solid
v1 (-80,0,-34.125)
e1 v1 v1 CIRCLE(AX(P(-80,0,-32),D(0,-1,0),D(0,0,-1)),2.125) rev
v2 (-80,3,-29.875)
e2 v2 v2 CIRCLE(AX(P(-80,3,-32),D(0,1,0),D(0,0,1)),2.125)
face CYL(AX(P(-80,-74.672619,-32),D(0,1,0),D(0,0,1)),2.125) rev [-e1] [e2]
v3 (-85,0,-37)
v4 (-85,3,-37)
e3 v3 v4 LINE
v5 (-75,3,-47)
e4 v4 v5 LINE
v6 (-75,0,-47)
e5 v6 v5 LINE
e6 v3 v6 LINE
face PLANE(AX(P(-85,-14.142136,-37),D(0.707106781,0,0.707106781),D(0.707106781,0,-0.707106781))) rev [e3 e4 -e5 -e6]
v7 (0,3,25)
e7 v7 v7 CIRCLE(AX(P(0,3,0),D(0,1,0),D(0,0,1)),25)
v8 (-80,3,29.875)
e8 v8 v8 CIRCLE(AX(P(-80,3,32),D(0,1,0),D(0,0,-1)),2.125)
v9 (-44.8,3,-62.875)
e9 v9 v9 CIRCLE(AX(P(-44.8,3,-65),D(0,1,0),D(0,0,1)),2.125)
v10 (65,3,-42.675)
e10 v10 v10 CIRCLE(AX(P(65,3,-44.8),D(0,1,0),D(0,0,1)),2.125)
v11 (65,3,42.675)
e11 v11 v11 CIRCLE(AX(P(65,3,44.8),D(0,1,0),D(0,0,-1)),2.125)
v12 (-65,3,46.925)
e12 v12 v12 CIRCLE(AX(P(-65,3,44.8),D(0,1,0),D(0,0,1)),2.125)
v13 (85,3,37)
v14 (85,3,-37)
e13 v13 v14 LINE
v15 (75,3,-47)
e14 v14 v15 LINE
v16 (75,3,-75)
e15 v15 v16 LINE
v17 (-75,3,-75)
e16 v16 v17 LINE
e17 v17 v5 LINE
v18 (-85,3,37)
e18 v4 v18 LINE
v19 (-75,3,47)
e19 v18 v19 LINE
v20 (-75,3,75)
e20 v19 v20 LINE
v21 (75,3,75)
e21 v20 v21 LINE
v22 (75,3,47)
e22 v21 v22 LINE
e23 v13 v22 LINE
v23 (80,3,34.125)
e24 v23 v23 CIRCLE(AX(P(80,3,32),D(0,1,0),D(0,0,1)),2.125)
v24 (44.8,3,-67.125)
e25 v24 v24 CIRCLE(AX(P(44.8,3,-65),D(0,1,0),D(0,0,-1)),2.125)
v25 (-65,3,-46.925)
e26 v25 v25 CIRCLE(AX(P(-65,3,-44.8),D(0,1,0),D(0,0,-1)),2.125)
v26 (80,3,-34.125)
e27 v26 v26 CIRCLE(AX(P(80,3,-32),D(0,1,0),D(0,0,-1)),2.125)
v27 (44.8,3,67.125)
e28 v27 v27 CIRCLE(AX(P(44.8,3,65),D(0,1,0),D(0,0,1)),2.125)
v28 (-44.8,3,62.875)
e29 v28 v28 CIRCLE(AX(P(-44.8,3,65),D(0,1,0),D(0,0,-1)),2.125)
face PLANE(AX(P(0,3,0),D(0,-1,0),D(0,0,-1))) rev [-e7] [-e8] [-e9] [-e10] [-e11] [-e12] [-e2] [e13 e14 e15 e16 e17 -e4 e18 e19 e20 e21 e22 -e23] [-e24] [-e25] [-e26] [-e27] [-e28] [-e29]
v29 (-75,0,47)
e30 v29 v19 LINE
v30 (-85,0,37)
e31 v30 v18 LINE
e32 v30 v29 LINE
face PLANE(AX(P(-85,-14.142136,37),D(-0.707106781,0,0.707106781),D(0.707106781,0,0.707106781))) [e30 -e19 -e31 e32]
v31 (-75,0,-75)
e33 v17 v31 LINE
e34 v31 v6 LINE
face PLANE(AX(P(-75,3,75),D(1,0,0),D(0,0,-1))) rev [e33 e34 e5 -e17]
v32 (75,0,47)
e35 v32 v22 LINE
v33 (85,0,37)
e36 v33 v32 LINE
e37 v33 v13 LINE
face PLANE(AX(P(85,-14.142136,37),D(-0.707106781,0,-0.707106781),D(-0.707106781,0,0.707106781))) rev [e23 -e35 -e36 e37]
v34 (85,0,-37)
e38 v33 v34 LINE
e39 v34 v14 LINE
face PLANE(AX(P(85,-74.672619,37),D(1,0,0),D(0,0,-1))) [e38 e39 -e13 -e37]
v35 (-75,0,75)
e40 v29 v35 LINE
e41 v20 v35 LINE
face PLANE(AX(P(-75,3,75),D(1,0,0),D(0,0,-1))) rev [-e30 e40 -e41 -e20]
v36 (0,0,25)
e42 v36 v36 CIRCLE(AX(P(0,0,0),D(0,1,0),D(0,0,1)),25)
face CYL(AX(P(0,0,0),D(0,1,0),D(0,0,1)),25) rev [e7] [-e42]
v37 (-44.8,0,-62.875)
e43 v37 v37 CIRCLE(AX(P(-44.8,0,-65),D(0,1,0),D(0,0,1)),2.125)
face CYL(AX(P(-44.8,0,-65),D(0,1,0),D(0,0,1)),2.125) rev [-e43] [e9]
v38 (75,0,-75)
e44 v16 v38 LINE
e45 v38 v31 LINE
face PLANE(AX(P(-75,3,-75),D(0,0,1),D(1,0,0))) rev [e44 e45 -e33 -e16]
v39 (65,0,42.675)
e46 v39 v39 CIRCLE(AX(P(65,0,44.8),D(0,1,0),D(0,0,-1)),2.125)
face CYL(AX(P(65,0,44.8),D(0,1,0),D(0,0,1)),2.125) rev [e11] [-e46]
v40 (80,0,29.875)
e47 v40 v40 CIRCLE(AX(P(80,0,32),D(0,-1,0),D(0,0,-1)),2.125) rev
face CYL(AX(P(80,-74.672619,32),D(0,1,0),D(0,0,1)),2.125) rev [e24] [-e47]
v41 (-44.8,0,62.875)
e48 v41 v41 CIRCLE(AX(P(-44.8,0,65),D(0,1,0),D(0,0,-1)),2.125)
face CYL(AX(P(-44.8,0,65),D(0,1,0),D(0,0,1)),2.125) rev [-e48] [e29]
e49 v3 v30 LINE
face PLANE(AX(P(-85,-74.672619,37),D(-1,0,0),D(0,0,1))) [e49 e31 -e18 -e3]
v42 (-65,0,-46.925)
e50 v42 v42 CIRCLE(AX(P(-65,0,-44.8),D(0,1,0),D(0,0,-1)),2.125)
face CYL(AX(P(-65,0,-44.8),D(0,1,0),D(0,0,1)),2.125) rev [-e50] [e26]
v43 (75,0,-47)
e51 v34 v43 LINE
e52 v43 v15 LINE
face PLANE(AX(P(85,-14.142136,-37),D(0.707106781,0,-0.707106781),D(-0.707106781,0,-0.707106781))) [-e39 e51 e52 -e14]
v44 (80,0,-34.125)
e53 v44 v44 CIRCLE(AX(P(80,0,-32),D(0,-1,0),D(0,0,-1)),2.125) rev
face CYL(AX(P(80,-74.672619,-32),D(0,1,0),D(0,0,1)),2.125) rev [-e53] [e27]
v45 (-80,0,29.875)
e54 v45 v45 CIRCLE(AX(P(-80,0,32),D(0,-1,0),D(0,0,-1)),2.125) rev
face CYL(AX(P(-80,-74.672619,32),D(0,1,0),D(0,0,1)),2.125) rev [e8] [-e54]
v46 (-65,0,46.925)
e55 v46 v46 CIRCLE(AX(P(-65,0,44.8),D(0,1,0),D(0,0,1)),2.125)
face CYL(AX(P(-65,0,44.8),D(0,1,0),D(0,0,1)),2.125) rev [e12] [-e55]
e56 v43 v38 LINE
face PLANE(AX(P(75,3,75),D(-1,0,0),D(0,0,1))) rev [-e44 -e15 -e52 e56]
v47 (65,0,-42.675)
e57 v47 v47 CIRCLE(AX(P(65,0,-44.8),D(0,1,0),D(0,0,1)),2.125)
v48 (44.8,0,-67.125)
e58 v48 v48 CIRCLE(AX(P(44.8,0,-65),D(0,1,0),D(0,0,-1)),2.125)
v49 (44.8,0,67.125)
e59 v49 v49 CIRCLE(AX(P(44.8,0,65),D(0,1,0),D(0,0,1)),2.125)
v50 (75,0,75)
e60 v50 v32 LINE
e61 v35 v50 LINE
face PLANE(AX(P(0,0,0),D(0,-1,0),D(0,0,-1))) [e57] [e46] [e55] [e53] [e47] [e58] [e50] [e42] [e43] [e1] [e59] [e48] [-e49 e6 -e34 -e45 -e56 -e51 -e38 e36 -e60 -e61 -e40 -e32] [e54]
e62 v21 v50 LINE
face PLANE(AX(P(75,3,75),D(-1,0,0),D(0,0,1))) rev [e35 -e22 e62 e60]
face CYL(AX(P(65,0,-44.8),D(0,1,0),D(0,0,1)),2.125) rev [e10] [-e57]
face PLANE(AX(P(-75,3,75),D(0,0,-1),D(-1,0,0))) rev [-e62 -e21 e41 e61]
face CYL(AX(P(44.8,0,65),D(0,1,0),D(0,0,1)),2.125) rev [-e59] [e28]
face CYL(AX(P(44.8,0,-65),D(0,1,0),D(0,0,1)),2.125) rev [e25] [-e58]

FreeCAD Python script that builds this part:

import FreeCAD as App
import Part
import Sketcher

doc = App.newDocument("Part")
body = doc.addObject("PartDesign::Body", "Body")

sketch1 = body.newObject("Sketcher::SketchObject", "Sketch")
sketch1.AttachmentSupport = (doc.getObject("XZ_Plane"), [""])
sketch1.MapMode = "FlatFace"
sketch1.addGeometry(Part.LineSegment(App.Vector(-75, -75, 0), App.Vector(-75, 75, 0)), False)
sketch1.addGeometry(Part.LineSegment(App.Vector(-75, 75, 0), App.Vector(75, 75, 0)), False)
sketch1.addGeometry(Part.LineSegment(App.Vector(75, 75, 0), App.Vector(75, -75, 0)), False)
sketch1.addGeometry(Part.LineSegment(App.Vector(75, -75, 0), App.Vector(-75, -75, 0)), False)
sketch1.addConstraint(Sketcher.Constraint("Coincident", 0, 2, 1, 1))
sketch1.addConstraint(Sketcher.Constraint("Coincident", 1, 2, 2, 1))
sketch1.addConstraint(Sketcher.Constraint("Coincident", 2, 2, 3, 1))
sketch1.addConstraint(Sketcher.Constraint("Coincident", 3, 2, 0, 1))
sketch1.addConstraint(Sketcher.Constraint("Vertical", 0))
sketch1.addConstraint(Sketcher.Constraint("Horizontal", 1))
sketch1.addConstraint(Sketcher.Constraint("Vertical", 2))
sketch1.addConstraint(Sketcher.Constraint("Horizontal", 3))
sketch1.addConstraint(Sketcher.Constraint("Symmetric", 0, 2, 2, 2, -1, 1))
sketch1.addConstraint(Sketcher.Constraint("Equal", 3, 0))
sketch1.addConstraint(Sketcher.Constraint("DistanceX", 1, 1, 1, 2, 150.0))
pad1 = body.newObject("PartDesign::Pad", "Pad")
pad1.Profile = sketch1
pad1.Length = 3
pad1.Reversed = True

sketch2 = body.newObject("Sketcher::SketchObject", "Sketch001")
sketch2.AttachmentSupport = (doc.getObject("XZ_Plane"), [""])
sketch2.MapMode = "FlatFace"
sketch2.AttachmentOffset = App.Placement(App.Vector(0, 0, -3), App.Rotation())
sketch2.addGeometry(Part.Circle(App.Vector(-65, 44.8, 0), App.Vector(0, 0, 1), 2.1), False)
sketch2.addGeometry(Part.Circle(App.Vector(-65, -44.8, 0), App.Vector(0, 0, 1), 2.1), False)
sketch2.addGeometry(Part.Circle(App.Vector(-44.8, -65, 0), App.Vector(0, 0, 1), 2.1), False)
sketch2.addGeometry(Part.Circle(App.Vector(44.8, -65, 0), App.Vector(0, 0, 1), 2.1), False)
sketch2.addGeometry(Part.Circle(App.Vector(65, -44.8, 0), App.Vector(0, 0, 1), 2.1), False)
sketch2.addGeometry(Part.Circle(App.Vector(65, 44.8, 0), App.Vector(0, 0, 1), 2.1), False)
sketch2.addGeometry(Part.Circle(App.Vector(44.8, 65, 0), App.Vector(0, 0, 1), 2.1), False)
sketch2.addGeometry(Part.Circle(App.Vector(-44.8, 65, 0), App.Vector(0, 0, 1), 2.1), False)
sketch2.addGeometry(Part.Circle(App.Vector(0, 0, 0), App.Vector(0, 0, 1), 25), False)
sketch2.addConstraint(Sketcher.Constraint("Coincident", 8, 3, -1, 1))
sketch2.addConstraint(Sketcher.Constraint("Equal", 0, 1))
sketch2.addConstraint(Sketcher.Constraint("Equal", 1, 2))
sketch2.addConstraint(Sketcher.Constraint("Equal", 2, 3))
sketch2.addConstraint(Sketcher.Constraint("Equal", 3, 4))
sketch2.addConstraint(Sketcher.Constraint("Equal", 4, 5))
sketch2.addConstraint(Sketcher.Constraint("Equal", 5, 6))
sketch2.addConstraint(Sketcher.Constraint("Equal", 6, 7))
sketch2.addConstraint(Sketcher.Constraint("Symmetric", 0, 3, 4, 3, -1, 1))
sketch2.addConstraint(Sketcher.Constraint("Symmetric", 1, 3, 5, 3, -1, 1))
sketch2.addConstraint(Sketcher.Constraint("Symmetric", 2, 3, 6, 3, -1, 1))
sketch2.addConstraint(Sketcher.Constraint("Symmetric", 3, 3, 7, 3, -1, 1))
sketch2.addConstraint(Sketcher.Constraint("Symmetric", 2, 3, 3, 3, -2))
sketch2.addConstraint(Sketcher.Constraint("Symmetric", 1, 3, 4, 3, -2))
sketch2.addConstraint(Sketcher.Constraint("Diameter", 8, 50.0))
sketch2.addConstraint(Sketcher.Constraint("Diameter", 0, 4.25))
sketch2.addConstraint(Sketcher.Constraint("DistanceX", 0, 3, -1, 1, 65.0))
sketch2.addConstraint(Sketcher.Constraint("DistanceY", 2, 3, -1, 1, 65.0))
sketch2.addConstraint(Sketcher.Constraint("DistanceY", -1, 1, 0, 3, 44.8))
sketch2.addConstraint(Sketcher.Constraint("DistanceX", 2, 3, -1, 1, 44.8))
pocket1 = body.newObject("PartDesign::Pocket", "Pocket")
pocket1.Profile = sketch2
pocket1.Type = "ThroughAll"
pocket1.Reversed = True

sketch3 = body.newObject("Sketcher::SketchObject", "Sketch002")
sketch3.AttachmentSupport = (doc.getObject("XZ_Plane"), [""])
sketch3.MapMode = "FlatFace"
sketch3.AttachmentOffset = App.Placement(App.Vector(0, 0, -3), App.Rotation())
sketch3.addGeometry(Part.LineSegment(App.Vector(-85, -37, 0), App.Vector(-85, 37, 0)), False)
sketch3.addGeometry(Part.LineSegment(App.Vector(-85, 37, 0), App.Vector(-75, 37, 0)), False)
sketch3.addGeometry(Part.LineSegment(App.Vector(-75, 37, 0), App.Vector(-75, -37, 0)), False)
sketch3.addGeometry(Part.LineSegment(App.Vector(-75, -37, 0), App.Vector(-85, -37, 0)), False)
sketch3.addGeometry(Part.Circle(App.Vector(-80, 32, 0), App.Vector(0, 0, 1), 2.1), False)
sketch3.addGeometry(Part.Circle(App.Vector(-80, -32, 0), App.Vector(0, 0, 1), 2.1), False)
sketch3.addGeometry(Part.LineSegment(App.Vector(75, -37, 0), App.Vector(75, 37, 0)), False)
sketch3.addGeometry(Part.LineSegment(App.Vector(75, 37, 0), App.Vector(85, 37, 0)), False)
sketch3.addGeometry(Part.LineSegment(App.Vector(85, 37, 0), App.Vector(85, -37, 0)), False)
sketch3.addGeometry(Part.LineSegment(App.Vector(85, -37, 0), App.Vector(75, -37, 0)), False)
sketch3.addGeometry(Part.Circle(App.Vector(80, 32, 0), App.Vector(0, 0, 1), 2.1), False)
sketch3.addGeometry(Part.Circle(App.Vector(80, -32, 0), App.Vector(0, 0, 1), 2.1), False)
sketch3.addConstraint(Sketcher.Constraint("Coincident", 0, 2, 1, 1))
sketch3.addConstraint(Sketcher.Constraint("Coincident", 1, 2, 2, 1))
sketch3.addConstraint(Sketcher.Constraint("Coincident", 2, 2, 3, 1))
sketch3.addConstraint(Sketcher.Constraint("Coincident", 3, 2, 0, 1))
sketch3.addConstraint(Sketcher.Constraint("Coincident", 6, 2, 7, 1))
sketch3.addConstraint(Sketcher.Constraint("Coincident", 7, 2, 8, 1))
sketch3.addConstraint(Sketcher.Constraint("Coincident", 8, 2, 9, 1))
sketch3.addConstraint(Sketcher.Constraint("Coincident", 9, 2, 6, 1))
sketch3.addConstraint(Sketcher.Constraint("Vertical", 0))
sketch3.addConstraint(Sketcher.Constraint("Horizontal", 1))
sketch3.addConstraint(Sketcher.Constraint("Vertical", 2))
sketch3.addConstraint(Sketcher.Constraint("Horizontal", 3))
sketch3.addConstraint(Sketcher.Constraint("Vertical", 6))
sketch3.addConstraint(Sketcher.Constraint("Horizontal", 7))
sketch3.addConstraint(Sketcher.Constraint("Vertical", 8))
sketch3.addConstraint(Sketcher.Constraint("Horizontal", 9))
sketch3.addConstraint(Sketcher.Constraint("Equal", 4, 5))
sketch3.addConstraint(Sketcher.Constraint("Equal", 5, 10))
sketch3.addConstraint(Sketcher.Constraint("Equal", 10, 11))
sketch3.addConstraint(Sketcher.Constraint("Symmetric", 5, 3, 10, 3, -1, 1))
sketch3.addConstraint(Sketcher.Constraint("Symmetric", 4, 3, 11, 3, -1, 1))
sketch3.addConstraint(Sketcher.Constraint("Symmetric", 2, 2, 6, 2, -1, 1))
sketch3.addConstraint(Sketcher.Constraint("Symmetric", 0, 2, 8, 2, -1, 1))
sketch3.addConstraint(Sketcher.Constraint("Symmetric", 4, 3, 10, 3, -2))
sketch3.addConstraint(Sketcher.Constraint("Horizontal", 1, 2, 6, 2))
sketch3.addConstraint(Sketcher.Constraint("Diameter", 4, 4.25))
sketch3.addConstraint(Sketcher.Constraint("DistanceX", 1, 1, 1, 2, 10.0))
sketch3.addConstraint(Sketcher.Constraint("DistanceY", 0, 1, 0, 2, 74.0))
sketch3.addConstraint(Sketcher.Constraint("DistanceX", 4, 3, -1, 1, 80.0))
sketch3.addConstraint(Sketcher.Constraint("DistanceY", -1, 1, 4, 3, 32.0))
sketch3.addConstraint(Sketcher.Constraint("DistanceX", 0, 2, -1, 1, 85.0))
pad2 = body.newObject("PartDesign::Pad", "Pad001")
pad2.Profile = sketch3
pad2.Length = 3

sketch4 = body.newObject("Sketcher::SketchObject", "Sketch003")
sketch4.AttachmentSupport = (doc.getObject("XZ_Plane"), [""])
sketch4.MapMode = "FlatFace"
sketch4.AttachmentOffset = App.Placement(App.Vector(0, 0, -3), App.Rotation())
sketch4.addGeometry(Part.LineSegment(App.Vector(-75, -47, 0), App.Vector(-85, -37, 0)), False)
sketch4.addGeometry(Part.LineSegment(App.Vector(-85, -37, 0), App.Vector(-75, -37, 0)), False)
sketch4.addGeometry(Part.LineSegment(App.Vector(-75, -37, 0), App.Vector(-75, -47, 0)), False)
sketch4.addGeometry(Part.LineSegment(App.Vector(75, -47, 0), App.Vector(75, -37, 0)), False)
sketch4.addGeometry(Part.LineSegment(App.Vector(75, -37, 0), App.Vector(85, -37, 0)), False)
sketch4.addGeometry(Part.LineSegment(App.Vector(85, -37, 0), App.Vector(75, -47, 0)), False)
sketch4.addGeometry(Part.LineSegment(App.Vector(75, 47, 0), App.Vector(85, 37, 0)), False)
sketch4.addGeometry(Part.LineSegment(App.Vector(85, 37, 0), App.Vector(75, 37, 0)), False)
sketch4.addGeometry(Part.LineSegment(App.Vector(75, 37, 0), App.Vector(75, 47, 0)), False)
sketch4.addGeometry(Part.LineSegment(App.Vector(-75, 47, 0), App.Vector(-75, 37, 0)), False)
sketch4.addGeometry(Part.LineSegment(App.Vector(-75, 37, 0), App.Vector(-85, 37, 0)), False)
sketch4.addGeometry(Part.LineSegment(App.Vector(-85, 37, 0), App.Vector(-75, 47, 0)), False)
sketch4.addConstraint(Sketcher.Constraint("Coincident", 0, 2, 1, 1))
sketch4.addConstraint(Sketcher.Constraint("Coincident", 1, 2, 2, 1))
sketch4.addConstraint(Sketcher.Constraint("Coincident", 2, 2, 0, 1))
sketch4.addConstraint(Sketcher.Constraint("Coincident", 3, 2, 4, 1))
sketch4.addConstraint(Sketcher.Constraint("Coincident", 4, 2, 5, 1))
sketch4.addConstraint(Sketcher.Constraint("Coincident", 5, 2, 3, 1))
sketch4.addConstraint(Sketcher.Constraint("Coincident", 6, 2, 7, 1))
sketch4.addConstraint(Sketcher.Constraint("Coincident", 7, 2, 8, 1))
sketch4.addConstraint(Sketcher.Constraint("Coincident", 8, 2, 6, 1))
sketch4.addConstraint(Sketcher.Constraint("Coincident", 9, 2, 10, 1))
sketch4.addConstraint(Sketcher.Constraint("Coincident", 10, 2, 11, 1))
sketch4.addConstraint(Sketcher.Constraint("Coincident", 11, 2, 9, 1))
sketch4.addConstraint(Sketcher.Constraint("Horizontal", 1))
sketch4.addConstraint(Sketcher.Constraint("Vertical", 2))
sketch4.addConstraint(Sketcher.Constraint("Vertical", 3))
sketch4.addConstraint(Sketcher.Constraint("Horizontal", 4))
sketch4.addConstraint(Sketcher.Constraint("Horizontal", 7))
sketch4.addConstraint(Sketcher.Constraint("Vertical", 8))
sketch4.addConstraint(Sketcher.Constraint("Vertical", 9))
sketch4.addConstraint(Sketcher.Constraint("Horizontal", 10))
sketch4.addConstraint(Sketcher.Constraint("Symmetric", 0, 2, 6, 2, -1, 1))
sketch4.addConstraint(Sketcher.Constraint("Symmetric", 2, 2, 8, 2, -1, 1))
sketch4.addConstraint(Sketcher.Constraint("Symmetric", 3, 2, 9, 2, -1, 1))
sketch4.addConstraint(Sketcher.Constraint("Symmetric", 1, 2, 3, 2, -2))
sketch4.addConstraint(Sketcher.Constraint("Perpendicular", 0, 5))
sketch4.addConstraint(Sketcher.Constraint("Perpendicular", 6, 11))
sketch4.addConstraint(Sketcher.Constraint("Horizontal", 2, 2, 5, 2))
sketch4.addConstraint(Sketcher.Constraint("Horizontal", 8, 2, 11, 2))
sketch4.addConstraint(Sketcher.Constraint("Vertical", 4, 2, 6, 2))
sketch4.addConstraint(Sketcher.Constraint("DistanceX", 1, 1, 1, 2, 10.0))
sketch4.addConstraint(Sketcher.Constraint("DistanceX", 0, 2, -1, 1, 85.0))
sketch4.addConstraint(Sketcher.Constraint("DistanceY", 0, 2, -1, 1, 37.0))
pad3 = body.newObject("PartDesign::Pad", "Pad002")
pad3.Profile = sketch4
pad3.Length = 3

doc.recompute()
